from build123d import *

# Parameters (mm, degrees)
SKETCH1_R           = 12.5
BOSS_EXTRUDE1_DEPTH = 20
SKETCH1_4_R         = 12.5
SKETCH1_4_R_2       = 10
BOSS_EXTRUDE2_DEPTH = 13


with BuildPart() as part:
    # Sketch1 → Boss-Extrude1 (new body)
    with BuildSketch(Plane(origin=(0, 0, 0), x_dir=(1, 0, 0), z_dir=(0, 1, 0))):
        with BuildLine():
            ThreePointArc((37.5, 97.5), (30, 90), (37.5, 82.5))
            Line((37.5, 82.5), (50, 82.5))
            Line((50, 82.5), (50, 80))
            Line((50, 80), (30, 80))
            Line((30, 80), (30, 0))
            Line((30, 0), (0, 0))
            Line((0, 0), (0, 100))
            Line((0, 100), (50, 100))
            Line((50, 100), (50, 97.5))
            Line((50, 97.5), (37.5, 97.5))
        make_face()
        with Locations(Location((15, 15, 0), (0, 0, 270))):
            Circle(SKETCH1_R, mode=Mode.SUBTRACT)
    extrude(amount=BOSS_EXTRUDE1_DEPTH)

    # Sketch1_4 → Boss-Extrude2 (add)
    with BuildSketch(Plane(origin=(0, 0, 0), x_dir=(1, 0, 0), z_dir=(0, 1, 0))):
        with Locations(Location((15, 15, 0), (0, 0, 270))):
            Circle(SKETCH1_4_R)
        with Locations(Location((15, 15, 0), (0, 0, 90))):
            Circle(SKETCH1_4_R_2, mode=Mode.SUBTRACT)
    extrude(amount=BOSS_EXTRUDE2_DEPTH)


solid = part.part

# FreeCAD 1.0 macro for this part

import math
import FreeCAD as App
import Part
import Sketcher
from FreeCAD import Vector
Q = App.Units.Quantity

doc = App.newDocument("Part")
params = doc.addObject("Spreadsheet::Sheet", "Params")
for row, (alias, value) in enumerate([
    ("sketch1_diameter", "25 mm"),
    ("sketch1_radius", "7.5 mm"),
    ("sketch1_width", "50 mm"),
    ("sketch1_width2", "30 mm"),
    ("sketch1_height", "100 mm"),
    ("pad1_length", "20 mm"),
    ("sketch2_diameter", "25 mm"),
    ("sketch2_diameter2", "20 mm"),
    ("pad2_length", "13 mm"),
], start=1):
    params.set(f"A{row}", alias)
    params.set(f"B{row}", "=" + value)
    params.setAlias(f"B{row}", alias)

body = doc.addObject("PartDesign::Body", "Body")

# Sketch on XZ plane
sketch1 = doc.addObject("Sketcher::SketchObject", "Sketch")
body.addObject(sketch1)
sketch1.AttachmentSupport = (doc.XZ_Plane, [""])
sketch1.MapMode = "FlatFace"
sketch1.addGeometry(Part.ArcOfCircle(Part.Circle(Vector(37.5, -90, 0), Vector(0, 0, 1), 7.5), math.radians(90), math.radians(270)), False)
sketch1.addGeometry(Part.LineSegment(Vector(37.5, -97.5, 0), Vector(50, -97.5, 0)), False)
sketch1.addGeometry(Part.LineSegment(Vector(50, -97.5, 0), Vector(50, -100, 0)), False)
sketch1.addGeometry(Part.LineSegment(Vector(50, -100, 0), Vector(0, -100, 0)), False)
sketch1.addGeometry(Part.LineSegment(Vector(0, -100, 0), Vector(0, 0, 0)), False)
sketch1.addGeometry(Part.LineSegment(Vector(0, 0, 0), Vector(30, 0, 0)), False)
sketch1.addGeometry(Part.LineSegment(Vector(30, 0, 0), Vector(30, -80, 0)), False)
sketch1.addGeometry(Part.LineSegment(Vector(30, -80, 0), Vector(50, -80, 0)), False)
sketch1.addGeometry(Part.LineSegment(Vector(50, -80, 0), Vector(50, -82.5, 0)), False)
sketch1.addGeometry(Part.LineSegment(Vector(50, -82.5, 0), Vector(37.5, -82.5, 0)), False)
sketch1.addGeometry(Part.Circle(Vector(15, -15, 0), Vector(0, 0, 1), 12.5), False)
sketch1.addConstraint(Sketcher.Constraint("Tangent", 0, 2, 1, 1))
sketch1.addConstraint(Sketcher.Constraint("Coincident", 1, 2, 2, 1))
sketch1.addConstraint(Sketcher.Constraint("Coincident", 2, 2, 3, 1))
sketch1.addConstraint(Sketcher.Constraint("Coincident", 3, 2, 4, 1))
sketch1.addConstraint(Sketcher.Constraint("Coincident", 4, 2, 5, 1))
sketch1.addConstraint(Sketcher.Constraint("Coincident", 5, 2, 6, 1))
sketch1.addConstraint(Sketcher.Constraint("Coincident", 6, 2, 7, 1))
sketch1.addConstraint(Sketcher.Constraint("Coincident", 7, 2, 8, 1))
sketch1.addConstraint(Sketcher.Constraint("Coincident", 8, 2, 9, 1))
sketch1.addConstraint(Sketcher.Constraint("Tangent", 9, 2, 0, 1))
sketch1.addConstraint(Sketcher.Constraint("Horizontal", 1))
sketch1.addConstraint(Sketcher.Constraint("Vertical", 2))
sketch1.addConstraint(Sketcher.Constraint("Horizontal", 3))
sketch1.addConstraint(Sketcher.Constraint("Vertical", 4))
sketch1.addConstraint(Sketcher.Constraint("Horizontal", 5))
sketch1.addConstraint(Sketcher.Constraint("Vertical", 6))
sketch1.addConstraint(Sketcher.Constraint("Horizontal", 7))
sketch1.addConstraint(Sketcher.Constraint("Vertical", 8))
sketch1.addConstraint(Sketcher.Constraint("Horizontal", 9))
sketch1.addConstraint(Sketcher.Constraint("Coincident", 4, 2, -1, 1))
sketch1.addConstraint(Sketcher.Constraint("Vertical", 2, 2, 7, 2))
sketch1.addConstraint(Sketcher.Constraint("Equal", 2, 8))
sketch1.addConstraint(Sketcher.Constraint("Diameter", 10, Q("25 mm")))
sketch1.addConstraint(Sketcher.Constraint("Radius", 0, Q("7.5 mm")))
sketch1.addConstraint(Sketcher.Constraint("DistanceX", 3, 2, 3, 1, Q("50 mm")))
sketch1.addConstraint(Sketcher.Constraint("DistanceX", 5, 1, 5, 2, Q("30 mm")))
sketch1.addConstraint(Sketcher.Constraint("DistanceY", 4, 1, 4, 2, Q("100 mm")))
sketch1.addConstraint(Sketcher.Constraint("DistanceY", 6, 2, 6, 1, Q("80 mm")))
sketch1.addConstraint(Sketcher.Constraint("DistanceX", 1, 1, 1, 2, Q("12.5 mm")))
sketch1.addConstraint(Sketcher.Constraint("DistanceX", -1, 1, 10, 3, Q("15 mm")))
sketch1.addConstraint(Sketcher.Constraint("DistanceY", 10, 3, -1, 1, Q("15 mm")))
sketch1.setExpression("Constraints[22]", "Params.sketch1_diameter")
sketch1.setExpression("Constraints[23]", "Params.sketch1_radius")
sketch1.setExpression("Constraints[24]", "Params.sketch1_width")
sketch1.setExpression("Constraints[25]", "Params.sketch1_width2")
sketch1.setExpression("Constraints[26]", "Params.sketch1_height")
pad1 = doc.addObject("PartDesign::Pad", "Pad")
body.addObject(pad1)
pad1.Profile = sketch1
pad1.setExpression("Length", "Params.pad1_length")
pad1.Reversed = True

# Sketch on XZ plane
sketch2 = doc.addObject("Sketcher::SketchObject", "Sketch001")
body.addObject(sketch2)
sketch2.AttachmentSupport = (doc.XZ_Plane, [""])
sketch2.MapMode = "FlatFace"
sketch2.addGeometry(Part.Circle(Vector(15, -15, 0), Vector(0, 0, 1), 12), False)
sketch2.addGeometry(Part.Circle(Vector(15, -15, 0), Vector(0, 0, 1), 10), False)
sketch2.addConstraint(Sketcher.Constraint("Coincident", 1, 3, 0, 3))
sketch2.addConstraint(Sketcher.Constraint("Diameter", 0, Q("25 mm")))
sketch2.addConstraint(Sketcher.Constraint("Diameter", 1, Q("20 mm")))
sketch2.addConstraint(Sketcher.Constraint("DistanceX", -1, 1, 0, 3, Q("15 mm")))
sketch2.addConstraint(Sketcher.Constraint("DistanceY", 0, 3, -1, 1, Q("15 mm")))
sketch2.setExpression("Constraints[1]", "Params.sketch2_diameter")
sketch2.setExpression("Constraints[2]", "Params.sketch2_diameter2")
pad2 = doc.addObject("PartDesign::Pad", "Pad001")
body.addObject(pad2)
pad2.Profile = sketch2
pad2.setExpression("Length", "Params.pad2_length")
pad2.Reversed = True

doc.recompute()
